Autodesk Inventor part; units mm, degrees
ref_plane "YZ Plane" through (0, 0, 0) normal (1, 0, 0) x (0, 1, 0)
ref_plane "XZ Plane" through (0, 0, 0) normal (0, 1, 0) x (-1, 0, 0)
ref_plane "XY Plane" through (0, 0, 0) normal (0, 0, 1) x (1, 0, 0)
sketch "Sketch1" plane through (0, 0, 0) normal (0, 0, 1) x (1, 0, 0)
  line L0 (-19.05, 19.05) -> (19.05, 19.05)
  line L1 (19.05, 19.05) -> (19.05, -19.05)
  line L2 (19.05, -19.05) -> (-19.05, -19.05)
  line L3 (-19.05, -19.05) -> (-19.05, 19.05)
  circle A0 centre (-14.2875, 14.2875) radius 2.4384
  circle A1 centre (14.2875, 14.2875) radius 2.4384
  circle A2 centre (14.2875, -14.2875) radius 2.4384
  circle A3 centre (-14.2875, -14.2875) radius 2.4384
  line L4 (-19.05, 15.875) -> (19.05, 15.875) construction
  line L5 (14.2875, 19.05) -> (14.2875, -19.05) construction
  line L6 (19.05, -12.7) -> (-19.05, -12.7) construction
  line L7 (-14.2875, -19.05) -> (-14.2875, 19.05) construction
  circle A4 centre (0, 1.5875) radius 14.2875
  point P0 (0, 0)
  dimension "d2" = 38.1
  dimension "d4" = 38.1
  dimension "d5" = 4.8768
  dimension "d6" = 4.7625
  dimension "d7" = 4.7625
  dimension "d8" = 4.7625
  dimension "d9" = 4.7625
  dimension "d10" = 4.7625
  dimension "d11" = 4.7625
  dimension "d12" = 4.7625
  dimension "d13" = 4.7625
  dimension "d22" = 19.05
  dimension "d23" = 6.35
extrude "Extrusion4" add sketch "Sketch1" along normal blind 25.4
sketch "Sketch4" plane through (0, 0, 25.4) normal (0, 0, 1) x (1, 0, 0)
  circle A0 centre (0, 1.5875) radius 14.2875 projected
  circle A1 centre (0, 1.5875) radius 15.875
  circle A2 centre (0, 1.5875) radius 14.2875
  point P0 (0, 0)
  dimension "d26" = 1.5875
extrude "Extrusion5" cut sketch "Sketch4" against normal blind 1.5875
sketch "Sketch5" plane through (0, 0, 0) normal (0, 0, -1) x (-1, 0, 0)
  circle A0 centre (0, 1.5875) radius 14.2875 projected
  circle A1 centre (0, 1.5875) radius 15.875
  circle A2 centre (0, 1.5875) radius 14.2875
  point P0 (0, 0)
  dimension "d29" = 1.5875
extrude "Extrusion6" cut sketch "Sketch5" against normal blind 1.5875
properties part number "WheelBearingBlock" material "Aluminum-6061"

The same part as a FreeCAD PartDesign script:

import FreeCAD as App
import Part
import Sketcher
Q = App.Units.Quantity


def add_polygon(sketch, points):
    """Adds a closed chain of lines whose ends are joined by coincident constraints."""
    first, n = sketch.GeometryCount, len(points)
    for a, b in zip(points, points[1:] + points[:1]):
        sketch.addGeometry(Part.LineSegment(App.Vector(*a, 0), App.Vector(*b, 0)), False)
    for i in range(n):
        sketch.addConstraint(Sketcher.Constraint("Coincident", first + i, 2, first + (i + 1) % n, 1))

doc = App.newDocument("Part")
body = doc.addObject("PartDesign::Body", "Body")

sketch1 = body.newObject("Sketcher::SketchObject", "Sketch")
sketch1.AttachmentSupport = (doc.getObject("XY_Plane"), [""])
sketch1.MapMode = "FlatFace"
add_polygon(sketch1, [(19.1, 19.1), (-19.1, 19.1), (-19.1, -19.1), (19.1, -19.1)])
sketch1.addGeometry(Part.Circle(App.Vector(-14.3, -14.3, 0), App.Vector(0, 0, 1), 2.4), False)
sketch1.addGeometry(Part.Circle(App.Vector(14.3, -14.3, 0), App.Vector(0, 0, 1), 2.4), False)
sketch1.addGeometry(Part.Circle(App.Vector(-14.3, 14.3, 0), App.Vector(0, 0, 1), 2.4), False)
sketch1.addGeometry(Part.Circle(App.Vector(0, 1.6, 0), App.Vector(0, 0, 1), 14.3), False)
sketch1.addGeometry(Part.Circle(App.Vector(14.3, 14.3, 0), App.Vector(0, 0, 1), 2.4), False)
sketch1.addConstraint([
    Sketcher.Constraint("Horizontal", 0),
    Sketcher.Constraint("Vertical", 1),
    Sketcher.Constraint("Horizontal", 2),
    Sketcher.Constraint("Vertical", 3),
    Sketcher.Constraint("Equal", 4, 5),
    Sketcher.Constraint("Equal", 5, 6),
    Sketcher.Constraint("Equal", 6, 8),
    Sketcher.Constraint("Symmetric", 5, 3, 6, 3, -1, 1),
    Sketcher.Constraint("Symmetric", 4, 3, 8, 3, -1, 1),
    Sketcher.Constraint("Symmetric", 0, 2, 2, 2, -1, 1),
    Sketcher.Constraint("Symmetric", 4, 3, 5, 3, -2),
    Sketcher.Constraint("PointOnObject", 7, 3, -2),
    Sketcher.Constraint("Equal", 2, 1),
    Sketcher.Constraint("Diameter", 4, Q("0.192 in")),
    Sketcher.Constraint("DistanceX", 0, 2, 0, 1, Q("1.5 in")),
    Sketcher.Constraint("Diameter", 7, Q("1.125 in")),
    Sketcher.Constraint("DistanceX", 0, 2, 6, 3, Q("0.1875 in")),
    Sketcher.Constraint("DistanceY", 6, 3, 0, 2, Q("0.1875 in")),
    Sketcher.Constraint("DistanceY", 7, 3, 6, 3, Q("0.5 in")),
])
pad1 = body.newObject("PartDesign::Pad", "Pad")
pad1.Profile = sketch1
pad1.Length = Q("1 in")

sketch2 = body.newObject("Sketcher::SketchObject", "Sketch001")
sketch2.AttachmentSupport = (doc.getObject("XY_Plane"), [""])
sketch2.MapMode = "FlatFace"
sketch2.AttachmentOffset = App.Placement(App.Vector(0, 0, 1 * 25.4), App.Rotation())
sketch2.addGeometry([
    Part.Circle(App.Vector(0, 2, 0), App.Vector(0, 0, 1), 16),
    Part.Circle(App.Vector(0, 2, 0), App.Vector(0, 0, 1), 14),
], False)
sketch2.addConstraint([
    Sketcher.Constraint("Coincident", 1, 3, 0, 3),
    Sketcher.Constraint("PointOnObject", 0, 3, -2),
    Sketcher.Constraint("Diameter", 0, Q("1.25 in")),
    Sketcher.Constraint("Diameter", 1, Q("1.125 in")),
    Sketcher.Constraint("DistanceY", -1, 1, 0, 3, Q("0.0625 in")),
])
pocket1 = body.newObject("PartDesign::Pocket", "Pocket")
pocket1.Profile = sketch2
pocket1.Length = Q("0.0625 in")

sketch3 = body.newObject("Sketcher::SketchObject", "Sketch002")
sketch3.AttachmentSupport = (doc.getObject("XY_Plane"), [""])
sketch3.MapMode = "FlatFace"
sketch3.addGeometry([
    Part.Circle(App.Vector(0, 2, 0), App.Vector(0, 0, 1), 16),
    Part.Circle(App.Vector(0, 2, 0), App.Vector(0, 0, 1), 14),
], False)
sketch3.addConstraint([
    Sketcher.Constraint("Coincident", 1, 3, 0, 3),
    Sketcher.Constraint("PointOnObject", 0, 3, -2),
    Sketcher.Constraint("Diameter", 0, Q("1.25 in")),
    Sketcher.Constraint("Diameter", 1, Q("1.125 in")),
    Sketcher.Constraint("DistanceY", -1, 1, 0, 3, Q("0.0625 in")),
])
pocket2 = body.newObject("PartDesign::Pocket", "Pocket001")
pocket2.Profile = sketch3
pocket2.Length = Q("0.0625 in")
pocket2.Reversed = True

doc.recompute()
